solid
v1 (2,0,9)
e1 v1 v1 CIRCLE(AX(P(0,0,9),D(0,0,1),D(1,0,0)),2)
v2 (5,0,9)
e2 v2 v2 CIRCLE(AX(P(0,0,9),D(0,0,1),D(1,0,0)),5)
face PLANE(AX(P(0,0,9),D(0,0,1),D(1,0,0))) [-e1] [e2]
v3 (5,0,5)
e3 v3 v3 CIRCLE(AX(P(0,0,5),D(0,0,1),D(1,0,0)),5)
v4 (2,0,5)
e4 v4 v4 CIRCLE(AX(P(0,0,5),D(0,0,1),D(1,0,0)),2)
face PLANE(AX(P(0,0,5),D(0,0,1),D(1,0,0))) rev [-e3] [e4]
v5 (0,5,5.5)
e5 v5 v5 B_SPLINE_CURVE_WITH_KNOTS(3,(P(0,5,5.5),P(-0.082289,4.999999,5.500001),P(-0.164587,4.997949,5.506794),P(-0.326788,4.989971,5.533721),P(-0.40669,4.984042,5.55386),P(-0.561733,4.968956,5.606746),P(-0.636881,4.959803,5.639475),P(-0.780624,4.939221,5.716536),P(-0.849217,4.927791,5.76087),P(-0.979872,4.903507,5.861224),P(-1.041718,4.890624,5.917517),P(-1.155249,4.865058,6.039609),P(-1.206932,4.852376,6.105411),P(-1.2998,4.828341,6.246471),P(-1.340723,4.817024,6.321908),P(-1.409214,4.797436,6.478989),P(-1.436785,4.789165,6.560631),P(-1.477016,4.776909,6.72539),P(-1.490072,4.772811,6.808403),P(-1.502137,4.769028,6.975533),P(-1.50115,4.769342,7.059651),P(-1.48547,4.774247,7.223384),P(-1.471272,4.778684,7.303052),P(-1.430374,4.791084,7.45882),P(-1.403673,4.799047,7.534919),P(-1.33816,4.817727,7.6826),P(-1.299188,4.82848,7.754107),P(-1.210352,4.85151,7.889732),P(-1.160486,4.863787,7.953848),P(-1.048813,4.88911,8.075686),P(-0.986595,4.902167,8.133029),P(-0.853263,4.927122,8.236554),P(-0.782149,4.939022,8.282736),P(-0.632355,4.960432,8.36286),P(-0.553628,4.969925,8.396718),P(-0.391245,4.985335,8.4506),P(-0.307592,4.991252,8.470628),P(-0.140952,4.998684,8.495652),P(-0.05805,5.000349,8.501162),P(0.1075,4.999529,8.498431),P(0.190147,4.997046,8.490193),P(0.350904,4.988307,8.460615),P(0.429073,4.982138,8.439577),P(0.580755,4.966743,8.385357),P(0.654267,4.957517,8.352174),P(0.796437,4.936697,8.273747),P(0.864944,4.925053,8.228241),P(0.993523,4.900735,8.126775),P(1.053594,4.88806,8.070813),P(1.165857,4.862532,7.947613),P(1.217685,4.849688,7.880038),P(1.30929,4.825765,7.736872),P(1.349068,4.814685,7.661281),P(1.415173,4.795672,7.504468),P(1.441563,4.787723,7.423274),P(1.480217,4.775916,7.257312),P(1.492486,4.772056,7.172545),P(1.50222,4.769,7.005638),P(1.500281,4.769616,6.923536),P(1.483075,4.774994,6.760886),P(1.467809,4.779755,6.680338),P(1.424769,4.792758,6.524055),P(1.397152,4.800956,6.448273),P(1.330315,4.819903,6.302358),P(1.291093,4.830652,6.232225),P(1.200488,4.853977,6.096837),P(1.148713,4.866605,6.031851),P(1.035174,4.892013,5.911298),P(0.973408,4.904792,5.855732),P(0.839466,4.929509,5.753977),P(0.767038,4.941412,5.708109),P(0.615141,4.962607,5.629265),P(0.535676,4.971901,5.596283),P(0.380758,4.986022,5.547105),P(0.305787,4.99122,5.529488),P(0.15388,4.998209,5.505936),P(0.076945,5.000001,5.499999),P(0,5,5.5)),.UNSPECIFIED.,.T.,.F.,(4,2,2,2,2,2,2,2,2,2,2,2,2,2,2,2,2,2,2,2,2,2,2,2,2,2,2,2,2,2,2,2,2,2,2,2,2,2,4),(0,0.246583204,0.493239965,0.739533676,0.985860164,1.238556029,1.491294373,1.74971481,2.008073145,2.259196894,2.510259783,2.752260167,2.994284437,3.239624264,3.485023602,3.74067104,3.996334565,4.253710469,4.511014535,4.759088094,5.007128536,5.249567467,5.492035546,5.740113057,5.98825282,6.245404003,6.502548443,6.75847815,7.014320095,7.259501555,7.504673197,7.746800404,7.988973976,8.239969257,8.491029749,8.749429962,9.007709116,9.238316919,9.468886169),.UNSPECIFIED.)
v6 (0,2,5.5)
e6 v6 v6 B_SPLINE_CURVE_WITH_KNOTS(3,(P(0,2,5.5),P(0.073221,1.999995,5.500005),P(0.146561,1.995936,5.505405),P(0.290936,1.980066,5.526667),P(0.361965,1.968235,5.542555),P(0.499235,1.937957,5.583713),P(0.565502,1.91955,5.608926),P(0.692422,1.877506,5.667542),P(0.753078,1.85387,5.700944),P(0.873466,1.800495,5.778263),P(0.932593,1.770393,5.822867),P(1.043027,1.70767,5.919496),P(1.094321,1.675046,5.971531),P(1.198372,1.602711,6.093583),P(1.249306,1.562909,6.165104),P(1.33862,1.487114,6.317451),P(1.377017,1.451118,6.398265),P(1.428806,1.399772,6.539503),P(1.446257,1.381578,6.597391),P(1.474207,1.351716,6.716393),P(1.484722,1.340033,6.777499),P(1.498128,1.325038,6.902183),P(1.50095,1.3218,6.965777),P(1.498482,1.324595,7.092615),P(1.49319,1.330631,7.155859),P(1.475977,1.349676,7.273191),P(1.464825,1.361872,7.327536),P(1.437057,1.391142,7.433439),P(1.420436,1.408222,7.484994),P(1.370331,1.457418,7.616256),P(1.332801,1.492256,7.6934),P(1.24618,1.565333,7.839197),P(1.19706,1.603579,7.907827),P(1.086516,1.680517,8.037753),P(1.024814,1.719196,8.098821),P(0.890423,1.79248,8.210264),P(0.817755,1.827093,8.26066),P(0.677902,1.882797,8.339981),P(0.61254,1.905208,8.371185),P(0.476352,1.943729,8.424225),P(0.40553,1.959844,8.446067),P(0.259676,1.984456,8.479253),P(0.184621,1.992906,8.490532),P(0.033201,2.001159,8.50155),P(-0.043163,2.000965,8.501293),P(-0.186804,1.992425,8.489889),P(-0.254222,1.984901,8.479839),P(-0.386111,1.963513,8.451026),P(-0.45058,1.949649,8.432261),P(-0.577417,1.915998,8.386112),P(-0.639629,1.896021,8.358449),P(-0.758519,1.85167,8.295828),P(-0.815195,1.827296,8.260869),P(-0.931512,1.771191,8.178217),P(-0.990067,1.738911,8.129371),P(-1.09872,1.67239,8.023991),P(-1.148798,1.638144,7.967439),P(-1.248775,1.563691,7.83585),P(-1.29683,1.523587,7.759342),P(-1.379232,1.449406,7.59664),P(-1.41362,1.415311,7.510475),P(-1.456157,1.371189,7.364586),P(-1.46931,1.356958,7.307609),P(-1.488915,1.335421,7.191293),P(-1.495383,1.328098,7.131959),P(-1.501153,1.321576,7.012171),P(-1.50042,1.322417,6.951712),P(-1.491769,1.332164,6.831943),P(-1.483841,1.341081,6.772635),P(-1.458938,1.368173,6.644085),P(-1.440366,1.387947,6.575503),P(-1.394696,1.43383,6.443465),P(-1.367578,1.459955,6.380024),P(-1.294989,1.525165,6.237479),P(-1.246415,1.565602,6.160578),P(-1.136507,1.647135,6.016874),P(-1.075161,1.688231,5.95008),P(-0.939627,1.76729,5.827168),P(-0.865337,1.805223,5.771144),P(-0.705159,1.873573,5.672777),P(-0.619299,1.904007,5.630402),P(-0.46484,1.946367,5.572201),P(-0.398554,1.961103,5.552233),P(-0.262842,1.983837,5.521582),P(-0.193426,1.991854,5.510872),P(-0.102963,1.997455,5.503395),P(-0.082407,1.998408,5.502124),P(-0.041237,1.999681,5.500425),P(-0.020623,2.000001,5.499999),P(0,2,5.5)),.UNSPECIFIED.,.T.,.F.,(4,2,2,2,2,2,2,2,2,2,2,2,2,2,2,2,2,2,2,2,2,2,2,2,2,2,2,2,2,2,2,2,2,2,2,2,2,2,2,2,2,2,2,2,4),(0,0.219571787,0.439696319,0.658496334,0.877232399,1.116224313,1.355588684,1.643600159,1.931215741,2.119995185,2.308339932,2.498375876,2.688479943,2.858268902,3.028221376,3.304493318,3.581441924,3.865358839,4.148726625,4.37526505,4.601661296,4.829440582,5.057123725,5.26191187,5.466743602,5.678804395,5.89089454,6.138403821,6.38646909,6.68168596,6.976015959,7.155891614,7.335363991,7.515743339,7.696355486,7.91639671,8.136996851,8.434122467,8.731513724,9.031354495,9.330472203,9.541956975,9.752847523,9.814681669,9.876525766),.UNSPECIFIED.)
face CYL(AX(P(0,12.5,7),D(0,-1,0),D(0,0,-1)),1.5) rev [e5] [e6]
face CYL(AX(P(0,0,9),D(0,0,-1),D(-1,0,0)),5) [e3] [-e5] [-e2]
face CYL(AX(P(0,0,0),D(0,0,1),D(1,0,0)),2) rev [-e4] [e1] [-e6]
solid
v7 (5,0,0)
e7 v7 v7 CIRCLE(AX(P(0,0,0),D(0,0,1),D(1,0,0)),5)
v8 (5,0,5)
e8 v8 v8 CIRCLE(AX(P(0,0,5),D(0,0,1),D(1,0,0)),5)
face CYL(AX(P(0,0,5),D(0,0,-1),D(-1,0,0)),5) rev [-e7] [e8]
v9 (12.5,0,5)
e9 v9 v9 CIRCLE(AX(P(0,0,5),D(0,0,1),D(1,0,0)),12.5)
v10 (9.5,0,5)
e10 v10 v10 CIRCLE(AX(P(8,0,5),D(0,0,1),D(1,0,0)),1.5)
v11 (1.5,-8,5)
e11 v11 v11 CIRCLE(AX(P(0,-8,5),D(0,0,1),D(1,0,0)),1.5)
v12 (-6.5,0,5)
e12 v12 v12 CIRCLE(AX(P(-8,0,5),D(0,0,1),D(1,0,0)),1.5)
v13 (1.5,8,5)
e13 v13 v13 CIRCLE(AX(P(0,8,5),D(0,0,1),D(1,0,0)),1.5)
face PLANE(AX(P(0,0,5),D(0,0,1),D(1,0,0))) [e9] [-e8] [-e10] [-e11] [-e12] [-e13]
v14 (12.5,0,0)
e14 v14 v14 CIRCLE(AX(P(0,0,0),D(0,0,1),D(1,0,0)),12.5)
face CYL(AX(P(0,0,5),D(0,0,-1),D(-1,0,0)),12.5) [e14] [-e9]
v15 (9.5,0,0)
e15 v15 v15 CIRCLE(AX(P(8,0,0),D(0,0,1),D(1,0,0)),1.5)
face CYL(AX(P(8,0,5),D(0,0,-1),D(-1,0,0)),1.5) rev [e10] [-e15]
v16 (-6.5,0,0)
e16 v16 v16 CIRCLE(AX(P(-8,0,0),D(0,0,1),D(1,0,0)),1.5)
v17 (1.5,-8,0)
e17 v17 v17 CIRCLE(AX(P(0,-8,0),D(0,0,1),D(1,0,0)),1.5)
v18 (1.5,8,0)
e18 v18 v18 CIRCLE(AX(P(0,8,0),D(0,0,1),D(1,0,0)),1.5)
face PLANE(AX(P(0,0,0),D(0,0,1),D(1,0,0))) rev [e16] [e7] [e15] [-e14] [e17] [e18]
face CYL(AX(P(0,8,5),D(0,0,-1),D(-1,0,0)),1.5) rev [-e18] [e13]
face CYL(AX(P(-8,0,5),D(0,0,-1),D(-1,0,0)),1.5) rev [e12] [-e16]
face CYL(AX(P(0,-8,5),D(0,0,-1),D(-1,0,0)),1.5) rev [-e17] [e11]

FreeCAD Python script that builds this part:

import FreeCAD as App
import Part
import Sketcher
from FreeCAD import Vector

doc = App.newDocument("Part")
body = doc.addObject("PartDesign::Body", "Body")

# Sketch on XY plane
sketch1 = body.newObject("Sketcher::SketchObject", "Sketch")
sketch1.AttachmentSupport = (doc.getObject("XY_Plane"), [""])
sketch1.MapMode = "FlatFace"
sketch1.addGeometry([
    Part.Circle(Vector(0, 0, 0), Vector(0, 0, 1), 12.5),  # 0
    Part.Circle(Vector(0, -8, 0), Vector(0, 0, 1), 1.5),  # 1
    Part.Circle(Vector(-8, 0, 0), Vector(0, 0, 1), 1.5),  # 2
    Part.Circle(Vector(0, 0, 0), Vector(0, 0, 1), 5),  # 3
    Part.Circle(Vector(8, 0, 0), Vector(0, 0, 1), 1.5),  # 4
    Part.Circle(Vector(0, 8, 0), Vector(0, 0, 1), 1.5),  # 5
], False)
sketch1.addConstraint([
    Sketcher.Constraint("Coincident", 0, 3, -1, 1),
    Sketcher.Constraint("Coincident", 3, 3, -1, 1),
    Sketcher.Constraint("Equal", 1, 2),
    Sketcher.Constraint("Equal", 2, 4),
    Sketcher.Constraint("Equal", 4, 5),
    Sketcher.Constraint("Symmetric", 2, 3, 4, 3, -1, 1),
    Sketcher.Constraint("Symmetric", 1, 3, 5, 3, -1, 1),
    Sketcher.Constraint("PointOnObject", 1, 3, -2),
    Sketcher.Constraint("PointOnObject", 2, 3, -1),
    Sketcher.Constraint("Diameter", 0, 25.0),
    Sketcher.Constraint("Diameter", 1, 3.0),
    Sketcher.Constraint("Diameter", 3, 10.0),
    Sketcher.Constraint("DistanceY", 1, 3, -1, 1, 8.0),
    Sketcher.Constraint("DistanceX", 2, 3, -1, 1, 8.0),
])
pad1 = body.newObject("PartDesign::Pad", "Pad")
pad1.Profile = sketch1
pad1.Length = 5
body2 = doc.addObject("PartDesign::Body", "Body001")

# Sketch on XY plane
sketch2 = body2.newObject("Sketcher::SketchObject", "Sketch001")
sketch2.AttachmentSupport = (doc.getObject("XY_Plane001"), [""])
sketch2.MapMode = "FlatFace"
sketch2.AttachmentOffset = App.Placement(Vector(0, 0, 5), App.Rotation())
sketch2.addGeometry(Part.Circle(Vector(0, 0, 0), Vector(0, 0, 1), 5), False)
sketch2.addConstraint([
    Sketcher.Constraint("Coincident", 0, 3, -1, 1),
    Sketcher.Constraint("Diameter", 0, 10.0),
])
pad2 = body2.newObject("PartDesign::Pad", "Pad001")
pad2.Profile = sketch2
pad2.Length = 4

# Sketch on XY plane
sketch3 = body2.newObject("Sketcher::SketchObject", "Sketch002")
sketch3.AttachmentSupport = (doc.getObject("XY_Plane001"), [""])
sketch3.MapMode = "FlatFace"
sketch3.AttachmentOffset = App.Placement(Vector(0, 0, 9), App.Rotation())
sketch3.addGeometry(Part.Circle(Vector(0, 0, 0), Vector(0, 0, 1), 2), False)
sketch3.addConstraint([
    Sketcher.Constraint("Coincident", 0, 3, -1, 1),
    Sketcher.Constraint("Diameter", 0, 4.0),
])
pocket1 = body2.newObject("PartDesign::Pocket", "Pocket")
pocket1.Profile = sketch3
pocket1.Type = "ThroughAll"

# Sketch on XZ plane
sketch4 = body2.newObject("Sketcher::SketchObject", "Sketch003")
sketch4.AttachmentSupport = (doc.getObject("XZ_Plane001"), [""])
sketch4.MapMode = "FlatFace"
sketch4.addGeometry(Part.Circle(Vector(0, 7, 0), Vector(0, 0, 1), 1.5), False)
sketch4.addConstraint([
    Sketcher.Constraint("PointOnObject", 0, 3, -2),
    Sketcher.Constraint("Diameter", 0, 3.0),
    Sketcher.Constraint("DistanceY", -1, 1, 0, 3, 7.0),
])
pocket2 = body2.newObject("PartDesign::Pocket", "Pocket001")
pocket2.Profile = sketch4
pocket2.Type = "ThroughAll"

doc.recompute()
